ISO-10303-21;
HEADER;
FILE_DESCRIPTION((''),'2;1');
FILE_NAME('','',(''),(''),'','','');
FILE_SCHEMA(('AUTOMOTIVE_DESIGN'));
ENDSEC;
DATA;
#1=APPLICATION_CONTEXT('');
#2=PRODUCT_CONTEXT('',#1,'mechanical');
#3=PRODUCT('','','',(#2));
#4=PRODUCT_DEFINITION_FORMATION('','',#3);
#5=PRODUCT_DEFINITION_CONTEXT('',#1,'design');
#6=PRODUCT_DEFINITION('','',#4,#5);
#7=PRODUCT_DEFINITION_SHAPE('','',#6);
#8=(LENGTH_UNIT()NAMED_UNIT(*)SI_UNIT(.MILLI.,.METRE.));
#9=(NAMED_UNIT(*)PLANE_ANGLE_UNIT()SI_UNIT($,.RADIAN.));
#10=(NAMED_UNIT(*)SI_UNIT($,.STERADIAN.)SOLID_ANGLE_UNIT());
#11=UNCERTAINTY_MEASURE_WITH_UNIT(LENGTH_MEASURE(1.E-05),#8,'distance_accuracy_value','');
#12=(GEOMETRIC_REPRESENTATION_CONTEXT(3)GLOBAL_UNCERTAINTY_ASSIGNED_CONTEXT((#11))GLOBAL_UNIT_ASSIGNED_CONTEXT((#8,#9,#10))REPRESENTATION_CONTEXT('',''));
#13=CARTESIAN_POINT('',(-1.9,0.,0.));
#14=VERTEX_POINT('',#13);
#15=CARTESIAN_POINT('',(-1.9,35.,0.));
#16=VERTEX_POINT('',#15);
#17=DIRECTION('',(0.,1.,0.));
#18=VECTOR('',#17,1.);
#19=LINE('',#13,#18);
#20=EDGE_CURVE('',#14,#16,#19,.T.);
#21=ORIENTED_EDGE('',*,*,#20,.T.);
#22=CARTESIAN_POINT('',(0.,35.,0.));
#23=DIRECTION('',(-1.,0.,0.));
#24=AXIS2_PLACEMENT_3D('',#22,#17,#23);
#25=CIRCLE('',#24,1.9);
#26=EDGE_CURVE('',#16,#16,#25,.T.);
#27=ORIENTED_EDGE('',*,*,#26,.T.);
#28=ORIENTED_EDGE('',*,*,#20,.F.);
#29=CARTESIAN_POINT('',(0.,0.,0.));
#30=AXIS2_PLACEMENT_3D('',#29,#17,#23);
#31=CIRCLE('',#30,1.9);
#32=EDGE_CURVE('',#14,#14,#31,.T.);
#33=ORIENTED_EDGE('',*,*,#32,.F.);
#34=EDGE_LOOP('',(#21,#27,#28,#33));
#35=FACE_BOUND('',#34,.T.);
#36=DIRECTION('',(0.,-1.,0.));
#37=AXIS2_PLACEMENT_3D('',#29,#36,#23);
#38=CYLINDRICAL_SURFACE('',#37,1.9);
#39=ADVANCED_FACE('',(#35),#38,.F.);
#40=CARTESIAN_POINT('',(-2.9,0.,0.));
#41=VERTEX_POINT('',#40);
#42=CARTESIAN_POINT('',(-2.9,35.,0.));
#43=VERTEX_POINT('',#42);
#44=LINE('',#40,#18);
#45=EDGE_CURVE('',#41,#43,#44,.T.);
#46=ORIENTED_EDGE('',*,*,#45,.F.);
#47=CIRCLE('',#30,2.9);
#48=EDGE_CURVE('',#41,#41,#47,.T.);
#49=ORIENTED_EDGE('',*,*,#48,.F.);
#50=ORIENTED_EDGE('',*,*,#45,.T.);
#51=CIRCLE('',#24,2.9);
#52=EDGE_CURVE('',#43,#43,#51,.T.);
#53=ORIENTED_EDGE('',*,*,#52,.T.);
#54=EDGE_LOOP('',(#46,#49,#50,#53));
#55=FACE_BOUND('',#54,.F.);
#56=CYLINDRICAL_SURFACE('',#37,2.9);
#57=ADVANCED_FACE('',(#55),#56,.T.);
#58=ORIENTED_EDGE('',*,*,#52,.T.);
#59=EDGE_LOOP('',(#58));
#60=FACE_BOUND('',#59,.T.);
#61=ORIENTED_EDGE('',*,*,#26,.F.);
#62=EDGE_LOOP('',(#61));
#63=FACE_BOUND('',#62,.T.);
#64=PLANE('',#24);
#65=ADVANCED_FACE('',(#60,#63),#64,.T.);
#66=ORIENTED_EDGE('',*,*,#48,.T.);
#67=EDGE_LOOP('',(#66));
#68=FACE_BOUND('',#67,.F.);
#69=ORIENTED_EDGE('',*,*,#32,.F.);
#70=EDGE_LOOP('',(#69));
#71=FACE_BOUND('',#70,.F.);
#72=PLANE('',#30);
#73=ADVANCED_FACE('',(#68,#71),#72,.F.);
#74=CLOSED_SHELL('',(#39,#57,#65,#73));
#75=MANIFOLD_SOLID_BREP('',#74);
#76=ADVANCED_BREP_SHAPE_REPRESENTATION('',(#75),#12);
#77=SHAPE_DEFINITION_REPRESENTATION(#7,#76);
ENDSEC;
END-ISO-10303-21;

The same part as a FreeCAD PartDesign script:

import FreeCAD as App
import Part
import Sketcher

doc = App.newDocument("Part")
params = doc.addObject("Spreadsheet::Sheet", "Params")
for row, (alias, value) in enumerate([
    ("sketch1_diameter", "3.8 mm"),
    ("sketch1_diameter2", "5.8 mm"),
    ("pad1_length", "35 mm"),
], start=1):
    params.set(f"A{row}", alias)
    params.set(f"B{row}", "=" + value)
    params.setAlias(f"B{row}", alias)

body = doc.addObject("PartDesign::Body", "Body")

sketch1 = doc.addObject("Sketcher::SketchObject", "Sketch")
body.addObject(sketch1)
sketch1.AttachmentSupport = (doc.XZ_Plane, [""])
sketch1.MapMode = "FlatFace"
sketch1.addGeometry(Part.Circle(App.Vector(0, 0, 0), App.Vector(0, 0, 1), 2.9), False)
sketch1.addGeometry(Part.Circle(App.Vector(0, 0, 0), App.Vector(0, 0, 1), 1.9), False)
sketch1.addConstraint(Sketcher.Constraint("Coincident", 0, 3, -1, 1))
sketch1.addConstraint(Sketcher.Constraint("Coincident", 1, 3, -1, 1))
sketch1.addConstraint(Sketcher.Constraint("Diameter", 1, 3.8))
sketch1.addConstraint(Sketcher.Constraint("Diameter", 0, 5.8))
sketch1.setExpression("Constraints[2]", "Params.sketch1_diameter")
sketch1.setExpression("Constraints[3]", "Params.sketch1_diameter2")
pad1 = doc.addObject("PartDesign::Pad", "Pad")
body.addObject(pad1)
pad1.Profile = sketch1
pad1.setExpression("Length", "Params.pad1_length")
pad1.Reversed = True

doc.recompute()
